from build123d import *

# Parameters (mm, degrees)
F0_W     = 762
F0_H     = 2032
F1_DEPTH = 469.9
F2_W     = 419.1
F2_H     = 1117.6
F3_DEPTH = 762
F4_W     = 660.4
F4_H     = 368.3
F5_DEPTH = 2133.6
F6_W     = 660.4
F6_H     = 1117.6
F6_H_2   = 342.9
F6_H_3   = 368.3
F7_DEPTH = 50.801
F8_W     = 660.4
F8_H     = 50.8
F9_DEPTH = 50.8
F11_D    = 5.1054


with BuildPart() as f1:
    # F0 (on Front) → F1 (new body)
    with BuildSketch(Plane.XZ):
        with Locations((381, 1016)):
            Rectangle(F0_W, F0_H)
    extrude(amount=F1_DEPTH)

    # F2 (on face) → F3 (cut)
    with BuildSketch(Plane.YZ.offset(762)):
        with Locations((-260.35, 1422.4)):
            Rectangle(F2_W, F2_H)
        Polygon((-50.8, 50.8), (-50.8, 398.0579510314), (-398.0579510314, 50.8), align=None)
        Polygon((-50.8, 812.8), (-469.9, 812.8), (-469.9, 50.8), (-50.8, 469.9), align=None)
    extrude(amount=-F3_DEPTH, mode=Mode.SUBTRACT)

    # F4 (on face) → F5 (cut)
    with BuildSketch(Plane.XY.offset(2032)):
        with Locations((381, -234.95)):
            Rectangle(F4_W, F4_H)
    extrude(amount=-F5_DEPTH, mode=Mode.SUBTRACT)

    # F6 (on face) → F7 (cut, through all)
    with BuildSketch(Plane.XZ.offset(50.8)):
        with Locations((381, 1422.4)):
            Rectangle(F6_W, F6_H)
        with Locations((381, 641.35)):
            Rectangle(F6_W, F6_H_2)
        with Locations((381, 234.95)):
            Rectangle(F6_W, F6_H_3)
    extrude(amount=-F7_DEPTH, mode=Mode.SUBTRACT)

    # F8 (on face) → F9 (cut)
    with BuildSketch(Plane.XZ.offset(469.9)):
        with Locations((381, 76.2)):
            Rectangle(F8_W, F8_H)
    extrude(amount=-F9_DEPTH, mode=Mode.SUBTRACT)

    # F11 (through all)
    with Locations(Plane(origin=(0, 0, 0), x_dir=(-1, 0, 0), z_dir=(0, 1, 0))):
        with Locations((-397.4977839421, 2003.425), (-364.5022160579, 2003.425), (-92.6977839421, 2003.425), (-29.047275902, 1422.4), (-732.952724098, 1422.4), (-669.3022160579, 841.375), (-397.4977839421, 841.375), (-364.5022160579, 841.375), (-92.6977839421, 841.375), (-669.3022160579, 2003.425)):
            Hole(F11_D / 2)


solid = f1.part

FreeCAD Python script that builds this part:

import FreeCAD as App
import Part
import Sketcher
from FreeCAD import Vector
Q = App.Units.Quantity

doc = App.newDocument("Part")
body = doc.addObject("PartDesign::Body", "Body")

# Sketch on XZ plane
sketch1 = doc.addObject("Sketcher::SketchObject", "Sketch")
body.addObject(sketch1)
sketch1.AttachmentSupport = (doc.XZ_Plane, [""])
sketch1.MapMode = "FlatFace"
sketch1.addGeometry(Part.LineSegment(Vector(0, 2032, 0), Vector(0, 0, 0)), False)
sketch1.addGeometry(Part.LineSegment(Vector(0, 0, 0), Vector(762, 0, 0)), False)
sketch1.addGeometry(Part.LineSegment(Vector(762, 0, 0), Vector(762, 2032, 0)), False)
sketch1.addGeometry(Part.LineSegment(Vector(762, 2032, 0), Vector(0, 2032, 0)), False)
sketch1.addConstraint(Sketcher.Constraint("Coincident", 0, 2, 1, 1))
sketch1.addConstraint(Sketcher.Constraint("Coincident", 1, 2, 2, 1))
sketch1.addConstraint(Sketcher.Constraint("Coincident", 2, 2, 3, 1))
sketch1.addConstraint(Sketcher.Constraint("Coincident", 3, 2, 0, 1))
sketch1.addConstraint(Sketcher.Constraint("Vertical", 0))
sketch1.addConstraint(Sketcher.Constraint("Horizontal", 1))
sketch1.addConstraint(Sketcher.Constraint("Vertical", 2))
sketch1.addConstraint(Sketcher.Constraint("Horizontal", 3))
sketch1.addConstraint(Sketcher.Constraint("Coincident", 0, 2, -1, 1))
sketch1.addConstraint(Sketcher.Constraint("DistanceX", 1, 1, 1, 2, Q("30 in")))
sketch1.addConstraint(Sketcher.Constraint("DistanceY", 0, 2, 0, 1, Q("80 in")))
pad1 = doc.addObject("PartDesign::Pad", "Pad")
body.addObject(pad1)
pad1.Profile = sketch1
pad1.Length = Q("18.5 in")

# Sketch on YZ plane
sketch2 = doc.addObject("Sketcher::SketchObject", "Sketch001")
body.addObject(sketch2)
sketch2.AttachmentSupport = (doc.YZ_Plane, [""])
sketch2.MapMode = "FlatFace"
sketch2.AttachmentOffset = App.Placement(Vector(0, 0, 30 * 25.4), App.Rotation())
sketch2.addGeometry(Part.LineSegment(Vector(-470, 1981, 0), Vector(-470, 864, 0)), False)
sketch2.addGeometry(Part.LineSegment(Vector(-470, 864, 0), Vector(-51, 864, 0)), False)
sketch2.addGeometry(Part.LineSegment(Vector(-51, 864, 0), Vector(-51, 1981, 0)), False)
sketch2.addGeometry(Part.LineSegment(Vector(-51, 1981, 0), Vector(-470, 1981, 0)), False)
sketch2.addGeometry(Part.LineSegment(Vector(-51, 51, 0), Vector(-51, 398, 0)), False)
sketch2.addGeometry(Part.LineSegment(Vector(-51, 398, 0), Vector(-398, 51, 0)), False)
sketch2.addGeometry(Part.LineSegment(Vector(-398, 51, 0), Vector(-51, 51, 0)), False)
sketch2.addGeometry(Part.LineSegment(Vector(-51, 813, 0), Vector(-470, 813, 0)), False)
sketch2.addGeometry(Part.LineSegment(Vector(-470, 813, 0), Vector(-470, 51, 0)), False)
sketch2.addGeometry(Part.LineSegment(Vector(-470, 51, 0), Vector(-51, 470, 0)), False)
sketch2.addGeometry(Part.LineSegment(Vector(-51, 470, 0), Vector(-51, 813, 0)), False)
sketch2.addConstraint(Sketcher.Constraint("Coincident", 0, 2, 1, 1))
sketch2.addConstraint(Sketcher.Constraint("Coincident", 1, 2, 2, 1))
sketch2.addConstraint(Sketcher.Constraint("Coincident", 2, 2, 3, 1))
sketch2.addConstraint(Sketcher.Constraint("Coincident", 3, 2, 0, 1))
sketch2.addConstraint(Sketcher.Constraint("Coincident", 4, 2, 5, 1))
sketch2.addConstraint(Sketcher.Constraint("Coincident", 5, 2, 6, 1))
sketch2.addConstraint(Sketcher.Constraint("Coincident", 6, 2, 4, 1))
sketch2.addConstraint(Sketcher.Constraint("Coincident", 7, 2, 8, 1))
sketch2.addConstraint(Sketcher.Constraint("Coincident", 8, 2, 9, 1))
sketch2.addConstraint(Sketcher.Constraint("Coincident", 9, 2, 10, 1))
sketch2.addConstraint(Sketcher.Constraint("Coincident", 10, 2, 7, 1))
sketch2.addConstraint(Sketcher.Constraint("Vertical", 0))
sketch2.addConstraint(Sketcher.Constraint("Horizontal", 1))
sketch2.addConstraint(Sketcher.Constraint("Vertical", 2))
sketch2.addConstraint(Sketcher.Constraint("Horizontal", 3))
sketch2.addConstraint(Sketcher.Constraint("Vertical", 4))
sketch2.addConstraint(Sketcher.Constraint("Horizontal", 6))
sketch2.addConstraint(Sketcher.Constraint("Horizontal", 7))
sketch2.addConstraint(Sketcher.Constraint("Vertical", 8))
sketch2.addConstraint(Sketcher.Constraint("Vertical", 10))
sketch2.addConstraint(Sketcher.Constraint("Parallel", 5, 9))
sketch2.addConstraint(Sketcher.Constraint("Horizontal", 6, 2, 8, 2))
sketch2.addConstraint(Sketcher.Constraint("Vertical", 2, 2, 4, 2))
sketch2.addConstraint(Sketcher.Constraint("Vertical", 3, 2, 7, 2))
sketch2.addConstraint(Sketcher.Constraint("Vertical", 6, 2, 9, 2))
sketch2.addConstraint(Sketcher.Constraint("Equal", 6, 4))
sketch2.addConstraint(Sketcher.Constraint("DistanceY", 0, 2, 0, 1, Q("44 in")))
sketch2.addConstraint(Sketcher.Constraint("DistanceY", 8, 2, 8, 1, Q("30 in")))
sketch2.addConstraint(Sketcher.Constraint("DistanceX", 1, 1, 1, 2, Q("16.5 in")))
sketch2.addConstraint(Sketcher.Constraint("DistanceY", -1, 1, 0, 2, Q("34 in")))
sketch2.addConstraint(Sketcher.Constraint("DistanceX", 1, 2, -1, 1, Q("2 in")))
sketch2.addConstraint(Sketcher.Constraint("DistanceY", -1, 1, 5, 2, Q("2 in")))
sketch2.addConstraint(Sketcher.Constraint("DistanceX", 6, 1, 6, 2, 347.257951))
pocket1 = doc.addObject("PartDesign::Pocket", "Pocket")
body.addObject(pocket1)
pocket1.Profile = sketch2
pocket1.Length = Q("30 in")

# Sketch on XY plane
sketch3 = doc.addObject("Sketcher::SketchObject", "Sketch002")
body.addObject(sketch3)
sketch3.AttachmentSupport = (doc.XY_Plane, [""])
sketch3.MapMode = "FlatFace"
sketch3.AttachmentOffset = App.Placement(Vector(0, 0, 80 * 25.4), App.Rotation())
sketch3.addGeometry(Part.LineSegment(Vector(51, -51, 0), Vector(51, -419, 0)), False)
sketch3.addGeometry(Part.LineSegment(Vector(51, -419, 0), Vector(711, -419, 0)), False)
sketch3.addGeometry(Part.LineSegment(Vector(711, -419, 0), Vector(711, -51, 0)), False)
sketch3.addGeometry(Part.LineSegment(Vector(711, -51, 0), Vector(51, -51, 0)), False)
sketch3.addConstraint(Sketcher.Constraint("Coincident", 0, 2, 1, 1))
sketch3.addConstraint(Sketcher.Constraint("Coincident", 1, 2, 2, 1))
sketch3.addConstraint(Sketcher.Constraint("Coincident", 2, 2, 3, 1))
sketch3.addConstraint(Sketcher.Constraint("Coincident", 3, 2, 0, 1))
sketch3.addConstraint(Sketcher.Constraint("Vertical", 0))
sketch3.addConstraint(Sketcher.Constraint("Horizontal", 1))
sketch3.addConstraint(Sketcher.Constraint("Vertical", 2))
sketch3.addConstraint(Sketcher.Constraint("Horizontal", 3))
sketch3.addConstraint(Sketcher.Constraint("DistanceX", 1, 1, 1, 2, Q("26 in")))
sketch3.addConstraint(Sketcher.Constraint("DistanceY", 0, 2, 0, 1, Q("14.5 in")))
sketch3.addConstraint(Sketcher.Constraint("DistanceX", -1, 1, 0, 2, Q("2 in")))
sketch3.addConstraint(Sketcher.Constraint("DistanceY", 2, 2, -1, 1, Q("2 in")))
pocket2 = doc.addObject("PartDesign::Pocket", "Pocket001")
body.addObject(pocket2)
pocket2.Profile = sketch3
pocket2.Length = Q("84 in")

# Sketch on XZ plane
sketch4 = doc.addObject("Sketcher::SketchObject", "Sketch003")
body.addObject(sketch4)
sketch4.AttachmentSupport = (doc.XZ_Plane, [""])
sketch4.MapMode = "FlatFace"
sketch4.AttachmentOffset = App.Placement(Vector(0, 0, 2 * 25.4), App.Rotation())
sketch4.addGeometry(Part.LineSegment(Vector(51, 1981, 0), Vector(51, 864, 0)), False)
sketch4.addGeometry(Part.LineSegment(Vector(51, 864, 0), Vector(711, 864, 0)), False)
sketch4.addGeometry(Part.LineSegment(Vector(711, 864, 0), Vector(711, 1981, 0)), False)
sketch4.addGeometry(Part.LineSegment(Vector(711, 1981, 0), Vector(51, 1981, 0)), False)
sketch4.addGeometry(Part.LineSegment(Vector(51, 813, 0), Vector(51, 470, 0)), False)
sketch4.addGeometry(Part.LineSegment(Vector(51, 470, 0), Vector(711, 470, 0)), False)
sketch4.addGeometry(Part.LineSegment(Vector(711, 470, 0), Vector(711, 813, 0)), False)
sketch4.addGeometry(Part.LineSegment(Vector(711, 813, 0), Vector(51, 813, 0)), False)
sketch4.addGeometry(Part.LineSegment(Vector(51, 419, 0), Vector(51, 51, 0)), False)
sketch4.addGeometry(Part.LineSegment(Vector(51, 51, 0), Vector(711, 51, 0)), False)
sketch4.addGeometry(Part.LineSegment(Vector(711, 51, 0), Vector(711, 419, 0)), False)
sketch4.addGeometry(Part.LineSegment(Vector(711, 419, 0), Vector(51, 419, 0)), False)
sketch4.addConstraint(Sketcher.Constraint("Coincident", 0, 2, 1, 1))
sketch4.addConstraint(Sketcher.Constraint("Coincident", 1, 2, 2, 1))
sketch4.addConstraint(Sketcher.Constraint("Coincident", 2, 2, 3, 1))
sketch4.addConstraint(Sketcher.Constraint("Coincident", 3, 2, 0, 1))
sketch4.addConstraint(Sketcher.Constraint("Coincident", 4, 2, 5, 1))
sketch4.addConstraint(Sketcher.Constraint("Coincident", 5, 2, 6, 1))
sketch4.addConstraint(Sketcher.Constraint("Coincident", 6, 2, 7, 1))
sketch4.addConstraint(Sketcher.Constraint("Coincident", 7, 2, 4, 1))
sketch4.addConstraint(Sketcher.Constraint("Coincident", 8, 2, 9, 1))
sketch4.addConstraint(Sketcher.Constraint("Coincident", 9, 2, 10, 1))
sketch4.addConstraint(Sketcher.Constraint("Coincident", 10, 2, 11, 1))
sketch4.addConstraint(Sketcher.Constraint("Coincident", 11, 2, 8, 1))
sketch4.addConstraint(Sketcher.Constraint("Vertical", 0))
sketch4.addConstraint(Sketcher.Constraint("Horizontal", 1))
sketch4.addConstraint(Sketcher.Constraint("Vertical", 2))
sketch4.addConstraint(Sketcher.Constraint("Horizontal", 3))
sketch4.addConstraint(Sketcher.Constraint("Vertical", 4))
sketch4.addConstraint(Sketcher.Constraint("Horizontal", 5))
sketch4.addConstraint(Sketcher.Constraint("Vertical", 6))
sketch4.addConstraint(Sketcher.Constraint("Horizontal", 7))
sketch4.addConstraint(Sketcher.Constraint("Vertical", 8))
sketch4.addConstraint(Sketcher.Constraint("Horizontal", 9))
sketch4.addConstraint(Sketcher.Constraint("Vertical", 10))
sketch4.addConstraint(Sketcher.Constraint("Horizontal", 11))
sketch4.addConstraint(Sketcher.Constraint("Vertical", 3, 2, 4, 2))
sketch4.addConstraint(Sketcher.Constraint("Vertical", 2, 2, 5, 2))
sketch4.addConstraint(Sketcher.Constraint("Vertical", 7, 2, 8, 2))
sketch4.addConstraint(Sketcher.Constraint("Vertical", 6, 2, 9, 2))
sketch4.addConstraint(Sketcher.Constraint("DistanceX", 1, 1, 1, 2, Q("26 in")))
sketch4.addConstraint(Sketcher.Constraint("DistanceY", 0, 2, 0, 1, Q("44 in")))
sketch4.addConstraint(Sketcher.Constraint("DistanceY", 4, 2, 4, 1, Q("13.5 in")))
sketch4.addConstraint(Sketcher.Constraint("DistanceY", 8, 2, 8, 1, Q("14.5 in")))
sketch4.addConstraint(Sketcher.Constraint("DistanceX", -1, 1, 0, 2, Q("2 in")))
sketch4.addConstraint(Sketcher.Constraint("DistanceY", -1, 1, 0, 2, Q("34 in")))
sketch4.addConstraint(Sketcher.Constraint("DistanceY", -1, 1, 6, 2, Q("32 in")))
sketch4.addConstraint(Sketcher.Constraint("DistanceY", -1, 1, 8, 2, Q("2 in")))
pocket3 = doc.addObject("PartDesign::Pocket", "Pocket002")
body.addObject(pocket3)
pocket3.Profile = sketch4
pocket3.Type = "ThroughAll"

# Sketch on XZ plane
sketch5 = doc.addObject("Sketcher::SketchObject", "Sketch004")
body.addObject(sketch5)
sketch5.AttachmentSupport = (doc.XZ_Plane, [""])
sketch5.MapMode = "FlatFace"
sketch5.AttachmentOffset = App.Placement(Vector(0, 0, 18.5 * 25.4), App.Rotation())
sketch5.addGeometry(Part.LineSegment(Vector(51, 102, 0), Vector(51, 51, 0)), False)
sketch5.addGeometry(Part.LineSegment(Vector(51, 51, 0), Vector(711, 51, 0)), False)
sketch5.addGeometry(Part.LineSegment(Vector(711, 51, 0), Vector(711, 102, 0)), False)
sketch5.addGeometry(Part.LineSegment(Vector(711, 102, 0), Vector(51, 102, 0)), False)
sketch5.addConstraint(Sketcher.Constraint("Coincident", 0, 2, 1, 1))
sketch5.addConstraint(Sketcher.Constraint("Coincident", 1, 2, 2, 1))
sketch5.addConstraint(Sketcher.Constraint("Coincident", 2, 2, 3, 1))
sketch5.addConstraint(Sketcher.Constraint("Coincident", 3, 2, 0, 1))
sketch5.addConstraint(Sketcher.Constraint("Vertical", 0))
sketch5.addConstraint(Sketcher.Constraint("Horizontal", 1))
sketch5.addConstraint(Sketcher.Constraint("Vertical", 2))
sketch5.addConstraint(Sketcher.Constraint("Horizontal", 3))
sketch5.addConstraint(Sketcher.Constraint("DistanceX", 1, 1, 1, 2, Q("26 in")))
sketch5.addConstraint(Sketcher.Constraint("DistanceY", 0, 2, 0, 1, Q("2 in")))
sketch5.addConstraint(Sketcher.Constraint("DistanceX", -1, 1, 0, 2, Q("2 in")))
sketch5.addConstraint(Sketcher.Constraint("DistanceY", -1, 1, 0, 2, Q("2 in")))
pocket4 = doc.addObject("PartDesign::Pocket", "Pocket003")
body.addObject(pocket4)
pocket4.Profile = sketch5
pocket4.Length = Q("2 in")

# Sketch on XZ plane
sketch6 = doc.addObject("Sketcher::SketchObject", "Sketch005")
body.addObject(sketch6)
sketch6.AttachmentSupport = (doc.XZ_Plane, [""])
sketch6.MapMode = "FlatFace"
sketch6.addGeometry(Part.Circle(Vector(397.5, 2003.4, 0), Vector(0, 0, 1), 2.6), False)
sketch6.addGeometry(Part.Circle(Vector(364.5, 2003.4, 0), Vector(0, 0, 1), 2.6), False)
sketch6.addGeometry(Part.Circle(Vector(92.7, 2003.4, 0), Vector(0, 0, 1), 2.6), False)
sketch6.addGeometry(Part.Circle(Vector(29, 1422.4, 0), Vector(0, 0, 1), 2.6), False)
sketch6.addGeometry(Part.Circle(Vector(733, 1422.4, 0), Vector(0, 0, 1), 2.6), False)
sketch6.addGeometry(Part.Circle(Vector(669.3, 841.4, 0), Vector(0, 0, 1), 2.6), False)
sketch6.addGeometry(Part.Circle(Vector(397.5, 841.4, 0), Vector(0, 0, 1), 2.6), False)
sketch6.addGeometry(Part.Circle(Vector(364.5, 841.4, 0), Vector(0, 0, 1), 2.6), False)
sketch6.addGeometry(Part.Circle(Vector(92.7, 841.4, 0), Vector(0, 0, 1), 2.6), False)
sketch6.addGeometry(Part.Circle(Vector(669.3, 2003.4, 0), Vector(0, 0, 1), 2.6), False)
sketch6.addConstraint(Sketcher.Constraint("Equal", 0, 1))
sketch6.addConstraint(Sketcher.Constraint("Equal", 1, 2))
sketch6.addConstraint(Sketcher.Constraint("Equal", 2, 3))
sketch6.addConstraint(Sketcher.Constraint("Equal", 3, 4))
sketch6.addConstraint(Sketcher.Constraint("Equal", 4, 5))
sketch6.addConstraint(Sketcher.Constraint("Equal", 5, 6))
sketch6.addConstraint(Sketcher.Constraint("Equal", 6, 7))
sketch6.addConstraint(Sketcher.Constraint("Equal", 7, 8))
sketch6.addConstraint(Sketcher.Constraint("Equal", 8, 9))
sketch6.addConstraint(Sketcher.Constraint("Horizontal", 0, 3, 1, 3))
sketch6.addConstraint(Sketcher.Constraint("Horizontal", 1, 3, 2, 3))
sketch6.addConstraint(Sketcher.Constraint("Horizontal", 3, 3, 4, 3))
sketch6.addConstraint(Sketcher.Constraint("Horizontal", 5, 3, 6, 3))
sketch6.addConstraint(Sketcher.Constraint("Horizontal", 6, 3, 7, 3))
sketch6.addConstraint(Sketcher.Constraint("Horizontal", 7, 3, 8, 3))
sketch6.addConstraint(Sketcher.Constraint("Horizontal", 2, 3, 9, 3))
sketch6.addConstraint(Sketcher.Constraint("Vertical", 0, 3, 6, 3))
sketch6.addConstraint(Sketcher.Constraint("Vertical", 1, 3, 7, 3))
sketch6.addConstraint(Sketcher.Constraint("Vertical", 2, 3, 8, 3))
sketch6.addConstraint(Sketcher.Constraint("Vertical", 5, 3, 9, 3))
sketch6.addConstraint(Sketcher.Constraint("Diameter", 0, Q("0.201 in")))
sketch6.addConstraint(Sketcher.Constraint("DistanceY", -1, 1, 3, 3, Q("56 in")))
sketch6.addConstraint(Sketcher.Constraint("DistanceX", 2, 3, 0, 3, Q("12 in")))
sketch6.addConstraint(Sketcher.Constraint("DistanceX", 1, 3, 5, 3, Q("12 in")))
sketch6.addConstraint(Sketcher.Constraint("DistanceY", 5, 3, 0, 3, Q("45.75 in")))
sketch6.addConstraint(Sketcher.Constraint("DistanceY", -1, 1, 0, 3, Q("78.875 in")))
sketch6.addConstraint(Sketcher.Constraint("DistanceX", 3, 3, 2, 3, 63.650508))
sketch6.addConstraint(Sketcher.Constraint("DistanceX", 3, 3, 1, 3, 335.45494))
sketch6.addConstraint(Sketcher.Constraint("DistanceX", 0, 3, 4, 3, 335.45494))
sketch6.addConstraint(Sketcher.Constraint("DistanceX", -1, 1, 0, 3, 397.497784))
doc.recompute()
hole = doc.addObject("PartDesign::Hole", "Hole")
body.addObject(hole)
hole.Profile = sketch6
hole.ThreadType = "None"
hole.Diameter = Q("0.201 in")
hole.DepthType = "ThroughAll"
hole.Reversed = True

doc.recompute()
